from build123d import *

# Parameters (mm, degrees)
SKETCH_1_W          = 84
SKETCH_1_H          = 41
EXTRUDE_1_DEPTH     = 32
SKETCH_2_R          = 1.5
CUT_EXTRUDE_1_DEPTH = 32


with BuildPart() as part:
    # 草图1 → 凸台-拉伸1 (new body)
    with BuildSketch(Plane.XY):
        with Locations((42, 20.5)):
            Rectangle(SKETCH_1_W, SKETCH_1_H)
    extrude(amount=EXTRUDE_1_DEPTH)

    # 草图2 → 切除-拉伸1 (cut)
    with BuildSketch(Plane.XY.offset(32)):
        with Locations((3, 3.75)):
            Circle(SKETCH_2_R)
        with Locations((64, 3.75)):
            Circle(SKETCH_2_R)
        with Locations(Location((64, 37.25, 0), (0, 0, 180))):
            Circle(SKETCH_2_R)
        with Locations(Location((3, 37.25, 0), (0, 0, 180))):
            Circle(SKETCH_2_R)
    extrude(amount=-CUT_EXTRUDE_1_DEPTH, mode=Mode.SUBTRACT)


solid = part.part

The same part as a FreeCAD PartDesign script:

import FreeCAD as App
import Part
import Sketcher

V = App.Vector
Q = App.Units.Quantity


def add_polygon(sketch, points):
    """Adds a closed chain of lines whose ends are joined by coincident constraints."""
    first, n = sketch.GeometryCount, len(points)
    for a, b in zip(points, points[1:] + points[:1]):
        sketch.addGeometry(Part.LineSegment(App.Vector(*a, 0), App.Vector(*b, 0)), False)
    for i in range(n):
        sketch.addConstraint(Sketcher.Constraint("Coincident", first + i, 2, first + (i + 1) % n, 1))

doc = App.newDocument("Part")
body = doc.addObject("PartDesign::Body", "Body")

sketch1 = doc.addObject("Sketcher::SketchObject", "Sketch")
body.addObject(sketch1)
sketch1.AttachmentSupport = (doc.XY_Plane, [""])
sketch1.MapMode = "FlatFace"
add_polygon(sketch1, [(0, 41), (0, 0), (84, 0), (84, 41)])
sketch1.addConstraint([
    Sketcher.Constraint("Vertical", 0),
    Sketcher.Constraint("Horizontal", 1),
    Sketcher.Constraint("Vertical", 2),
    Sketcher.Constraint("Horizontal", 3),
    Sketcher.Constraint("Coincident", 0, 2, -1, 1),
    Sketcher.Constraint("DistanceX", 1, 1, 1, 2, Q("84 mm")),
    Sketcher.Constraint("DistanceY", 0, 2, 0, 1, Q("41 mm")),
])
pad1 = doc.addObject("PartDesign::Pad", "Pad")
body.addObject(pad1)
pad1.Profile = sketch1
pad1.Length = 32

sketch2 = doc.addObject("Sketcher::SketchObject", "Sketch001")
body.addObject(sketch2)
sketch2.AttachmentSupport = (doc.XY_Plane, [""])
sketch2.MapMode = "FlatFace"
sketch2.AttachmentOffset = App.Placement(V(0, 0, 32), App.Rotation())
sketch2.addGeometry([
    Part.Circle(V(3, 3.8, 0), V(0, 0, 1), 1.5),
    Part.Circle(V(64, 3.8, 0), V(0, 0, 1), 1.5),
    Part.Circle(V(64, 37.2, 0), V(0, 0, 1), 1.5),
    Part.Circle(V(3, 37.2, 0), V(0, 0, 1), 1.5),
], False)
sketch2.addConstraint([
    Sketcher.Constraint("Equal", 0, 1),
    Sketcher.Constraint("Equal", 1, 2),
    Sketcher.Constraint("Equal", 2, 3),
    Sketcher.Constraint("Horizontal", 0, 3, 1, 3),
    Sketcher.Constraint("Horizontal", 2, 3, 3, 3),
    Sketcher.Constraint("Vertical", 1, 3, 2, 3),
    Sketcher.Constraint("Vertical", 0, 3, 3, 3),
    Sketcher.Constraint("Diameter", 0, Q("3 mm")),
    Sketcher.Constraint("DistanceX", -1, 1, 0, 3, Q("3 mm")),
    Sketcher.Constraint("DistanceX", -1, 1, 1, 3, Q("64 mm")),
    Sketcher.Constraint("DistanceY", 1, 3, 2, 3, Q("33.5 mm")),
    Sketcher.Constraint("DistanceY", -1, 1, 0, 3, Q("3.75 mm")),
])
pocket1 = doc.addObject("PartDesign::Pocket", "Pocket")
body.addObject(pocket1)
pocket1.Profile = sketch2
pocket1.Length = 32

doc.recompute()
